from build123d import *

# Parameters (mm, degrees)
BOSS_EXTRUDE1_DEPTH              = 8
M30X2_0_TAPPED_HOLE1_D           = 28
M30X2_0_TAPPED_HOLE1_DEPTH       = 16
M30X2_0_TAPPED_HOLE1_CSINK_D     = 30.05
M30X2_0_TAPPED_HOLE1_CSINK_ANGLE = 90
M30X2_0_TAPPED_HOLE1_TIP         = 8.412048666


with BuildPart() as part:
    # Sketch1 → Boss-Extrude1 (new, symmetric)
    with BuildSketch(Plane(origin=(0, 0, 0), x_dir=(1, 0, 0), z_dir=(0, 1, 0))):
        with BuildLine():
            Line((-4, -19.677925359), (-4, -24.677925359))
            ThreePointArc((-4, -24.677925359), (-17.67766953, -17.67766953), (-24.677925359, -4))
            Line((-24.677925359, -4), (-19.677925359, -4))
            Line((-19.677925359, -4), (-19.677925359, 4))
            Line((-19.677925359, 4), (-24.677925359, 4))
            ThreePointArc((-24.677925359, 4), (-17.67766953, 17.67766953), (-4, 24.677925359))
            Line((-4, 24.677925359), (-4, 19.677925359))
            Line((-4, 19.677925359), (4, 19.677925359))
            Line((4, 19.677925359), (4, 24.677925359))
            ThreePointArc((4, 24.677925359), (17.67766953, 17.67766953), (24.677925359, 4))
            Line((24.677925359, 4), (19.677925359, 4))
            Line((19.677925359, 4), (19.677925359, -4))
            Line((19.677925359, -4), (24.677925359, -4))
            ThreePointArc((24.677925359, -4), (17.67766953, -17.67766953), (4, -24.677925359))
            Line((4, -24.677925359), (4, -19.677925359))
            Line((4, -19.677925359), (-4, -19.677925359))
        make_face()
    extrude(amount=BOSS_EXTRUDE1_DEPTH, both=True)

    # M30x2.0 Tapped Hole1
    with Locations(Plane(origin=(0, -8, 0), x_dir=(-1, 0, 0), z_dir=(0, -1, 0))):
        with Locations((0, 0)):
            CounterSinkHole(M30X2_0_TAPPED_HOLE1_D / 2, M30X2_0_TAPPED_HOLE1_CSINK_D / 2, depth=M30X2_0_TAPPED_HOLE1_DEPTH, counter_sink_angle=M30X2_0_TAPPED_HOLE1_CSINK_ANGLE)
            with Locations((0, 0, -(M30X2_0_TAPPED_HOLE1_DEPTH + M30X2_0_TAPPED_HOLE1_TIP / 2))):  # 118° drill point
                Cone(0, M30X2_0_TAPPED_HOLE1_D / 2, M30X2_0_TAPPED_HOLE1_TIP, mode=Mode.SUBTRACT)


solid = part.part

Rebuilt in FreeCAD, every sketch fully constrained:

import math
import FreeCAD as App
import Part
import Sketcher

V = App.Vector

doc = App.newDocument("Part")
params = doc.addObject("Spreadsheet::Sheet", "Params")
for row, (alias, value) in enumerate([
    ("sketch1_radius", "25 mm"),
    ("sketch1_width", "8 mm"),
    ("sketch1_width2", "5 mm"),
    ("pad1_length", "16 mm"),
    ("sketch2_diameter", "28 mm"),
    ("hole_diameter", "28 mm"),
    ("hole_depth", "16 mm"),
    ("hole_csink_diameter", "30.05 mm"),
], start=1):
    params.set(f"A{row}", alias)
    params.set(f"B{row}", "=" + value)
    params.setAlias(f"B{row}", alias)

body = doc.addObject("PartDesign::Body", "Body")

sketch1 = body.newObject("Sketcher::SketchObject", "Sketch")
sketch1.AttachmentSupport = (doc.getObject("XZ_Plane"), [""])
sketch1.MapMode = "FlatFace"
sketch1.addGeometry(Part.LineSegment(V(-4, 24.677925, 0), V(-4, 19.677925, 0)), False)
sketch1.addGeometry(Part.LineSegment(V(-4, 19.677925, 0), V(4, 19.677925, 0)), False)
sketch1.addGeometry(Part.LineSegment(V(4, 19.677925, 0), V(4, 24.677925, 0)), False)
sketch1.addGeometry(Part.ArcOfCircle(Part.Circle(V(0, 0, 0), V(0, 0, 1), 25), math.radians(9.206896), math.radians(80.793104)), False)
sketch1.addGeometry(Part.LineSegment(V(24.677925, 4, 0), V(19.677925, 4, 0)), False)
sketch1.addGeometry(Part.LineSegment(V(19.677925, 4, 0), V(19.677925, -4, 0)), False)
sketch1.addGeometry(Part.LineSegment(V(19.677925, -4, 0), V(24.677925, -4, 0)), False)
sketch1.addGeometry(Part.ArcOfCircle(Part.Circle(V(0, 0, 0), V(0, 0, 1), 25), math.radians(-80.793104), math.radians(-9.206896)), False)
sketch1.addGeometry(Part.LineSegment(V(4, -24.677925, 0), V(4, -19.677925, 0)), False)
sketch1.addGeometry(Part.LineSegment(V(4, -19.677925, 0), V(-4, -19.677925, 0)), False)
sketch1.addGeometry(Part.LineSegment(V(-4, -19.677925, 0), V(-4, -24.677925, 0)), False)
sketch1.addGeometry(Part.ArcOfCircle(Part.Circle(V(0, 0, 0), V(0, 0, 1), 25), math.radians(-170.793104), math.radians(-99.206896)), False)
sketch1.addGeometry(Part.LineSegment(V(-24.677925, -4, 0), V(-19.677925, -4, 0)), False)
sketch1.addGeometry(Part.LineSegment(V(-19.677925, -4, 0), V(-19.677925, 4, 0)), False)
sketch1.addGeometry(Part.LineSegment(V(-19.677925, 4, 0), V(-24.677925, 4, 0)), False)
sketch1.addGeometry(Part.ArcOfCircle(Part.Circle(V(0, 0, 0), V(0, 0, 1), 25), math.radians(99.206896), math.radians(170.793104)), False)
sketch1.addConstraint(Sketcher.Constraint("Coincident", 0, 2, 1, 1))
sketch1.addConstraint(Sketcher.Constraint("Coincident", 1, 2, 2, 1))
sketch1.addConstraint(Sketcher.Constraint("Coincident", 2, 2, 3, 2))
sketch1.addConstraint(Sketcher.Constraint("Coincident", 3, 1, 4, 1))
sketch1.addConstraint(Sketcher.Constraint("Coincident", 4, 2, 5, 1))
sketch1.addConstraint(Sketcher.Constraint("Coincident", 5, 2, 6, 1))
sketch1.addConstraint(Sketcher.Constraint("Coincident", 6, 2, 7, 2))
sketch1.addConstraint(Sketcher.Constraint("Coincident", 7, 1, 8, 1))
sketch1.addConstraint(Sketcher.Constraint("Coincident", 8, 2, 9, 1))
sketch1.addConstraint(Sketcher.Constraint("Coincident", 9, 2, 10, 1))
sketch1.addConstraint(Sketcher.Constraint("Coincident", 10, 2, 11, 2))
sketch1.addConstraint(Sketcher.Constraint("Coincident", 11, 1, 12, 1))
sketch1.addConstraint(Sketcher.Constraint("Coincident", 12, 2, 13, 1))
sketch1.addConstraint(Sketcher.Constraint("Coincident", 13, 2, 14, 1))
sketch1.addConstraint(Sketcher.Constraint("Coincident", 14, 2, 15, 2))
sketch1.addConstraint(Sketcher.Constraint("Coincident", 15, 1, 0, 1))
sketch1.addConstraint(Sketcher.Constraint("Vertical", 0))
sketch1.addConstraint(Sketcher.Constraint("Horizontal", 1))
sketch1.addConstraint(Sketcher.Constraint("Vertical", 2))
sketch1.addConstraint(Sketcher.Constraint("Horizontal", 4))
sketch1.addConstraint(Sketcher.Constraint("Vertical", 5))
sketch1.addConstraint(Sketcher.Constraint("Horizontal", 6))
sketch1.addConstraint(Sketcher.Constraint("Vertical", 8))
sketch1.addConstraint(Sketcher.Constraint("Horizontal", 9))
sketch1.addConstraint(Sketcher.Constraint("Vertical", 10))
sketch1.addConstraint(Sketcher.Constraint("Horizontal", 12))
sketch1.addConstraint(Sketcher.Constraint("Vertical", 13))
sketch1.addConstraint(Sketcher.Constraint("Horizontal", 14))
sketch1.addConstraint(Sketcher.Constraint("Coincident", 3, 3, -1, 1))
sketch1.addConstraint(Sketcher.Constraint("Coincident", 7, 3, -1, 1))
sketch1.addConstraint(Sketcher.Constraint("Coincident", 11, 3, -1, 1))
sketch1.addConstraint(Sketcher.Constraint("Coincident", 15, 3, -1, 1))
sketch1.addConstraint(Sketcher.Constraint("Equal", 3, 7))
sketch1.addConstraint(Sketcher.Constraint("Equal", 7, 11))
sketch1.addConstraint(Sketcher.Constraint("Equal", 11, 15))
sketch1.addConstraint(Sketcher.Constraint("Symmetric", 0, 2, 8, 2, -1, 1))
sketch1.addConstraint(Sketcher.Constraint("Symmetric", 4, 2, 12, 2, -1, 1))
sketch1.addConstraint(Sketcher.Constraint("Horizontal", 7, 1, 10, 2))
sketch1.addConstraint(Sketcher.Constraint("Horizontal", 6, 2, 11, 1))
sketch1.addConstraint(Sketcher.Constraint("Horizontal", 4, 2, 13, 2))
sketch1.addConstraint(Sketcher.Constraint("Horizontal", 2, 2, 15, 1))
sketch1.addConstraint(Sketcher.Constraint("Equal", 14, 0))
sketch1.addConstraint(Sketcher.Constraint("Equal", 9, 5))
sketch1.addConstraint(Sketcher.Constraint("Radius", 3, 25.0))
sketch1.addConstraint(Sketcher.Constraint("DistanceX", 1, 1, 1, 2, 8.0))
sketch1.addConstraint(Sketcher.Constraint("DistanceX", 4, 2, 4, 1, 5.0))
sketch1.setExpression("Constraints[43]", "Params.sketch1_radius")
sketch1.setExpression("Constraints[44]", "Params.sketch1_width")
sketch1.setExpression("Constraints[45]", "Params.sketch1_width2")
pad1 = body.newObject("PartDesign::Pad", "Pad")
pad1.Profile = sketch1
pad1.setExpression("Length", "Params.pad1_length")
pad1.Midplane = True

sketch2 = body.newObject("Sketcher::SketchObject", "Sketch001")
sketch2.AttachmentSupport = (doc.getObject("XZ_Plane"), [""])
sketch2.MapMode = "FlatFace"
sketch2.AttachmentOffset = App.Placement(V(0, 0, 8), App.Rotation())
sketch2.addGeometry(Part.Circle(V(0, 0, 0), V(0, 0, 1), 14), False)
sketch2.addConstraint(Sketcher.Constraint("Coincident", 0, 3, -1, 1))
sketch2.addConstraint(Sketcher.Constraint("Diameter", 0, 28.0))
sketch2.setExpression("Constraints[1]", "Params.sketch2_diameter")
doc.recompute()
hole = body.newObject("PartDesign::Hole", "Hole")
hole.Profile = sketch2
hole.ThreadType = "None"
hole.setExpression("Diameter", "Params.hole_diameter")
hole.DepthType = "Dimension"
hole.setExpression("Depth", "Params.hole_depth")
hole.DrillPoint = "Angled"
hole.DrillPointAngle = 118
hole.HoleCutType = "Countersink"
hole.setExpression("HoleCutDiameter", "Params.hole_csink_diameter")
hole.HoleCutCountersinkAngle = 90

doc.recompute()
